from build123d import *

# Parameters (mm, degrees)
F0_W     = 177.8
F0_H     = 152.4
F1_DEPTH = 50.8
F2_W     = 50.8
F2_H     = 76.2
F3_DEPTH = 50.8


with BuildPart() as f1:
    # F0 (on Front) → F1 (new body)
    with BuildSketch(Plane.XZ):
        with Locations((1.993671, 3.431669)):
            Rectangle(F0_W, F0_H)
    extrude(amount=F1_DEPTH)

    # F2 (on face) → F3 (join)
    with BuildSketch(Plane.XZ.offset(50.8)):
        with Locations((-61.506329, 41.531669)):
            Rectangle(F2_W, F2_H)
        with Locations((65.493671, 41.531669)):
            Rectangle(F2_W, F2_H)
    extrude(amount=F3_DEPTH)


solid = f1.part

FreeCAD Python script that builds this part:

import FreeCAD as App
import Part
import Sketcher
Q = App.Units.Quantity


def add_polygon(sketch, points):
    """Adds a closed chain of lines whose ends are joined by coincident constraints."""
    first, n = sketch.GeometryCount, len(points)
    for a, b in zip(points, points[1:] + points[:1]):
        sketch.addGeometry(Part.LineSegment(App.Vector(*a, 0), App.Vector(*b, 0)), False)
    for i in range(n):
        sketch.addConstraint(Sketcher.Constraint("Coincident", first + i, 2, first + (i + 1) % n, 1))

doc = App.newDocument("Part")
body = doc.addObject("PartDesign::Body", "Body")

# Sketch on XZ plane
sketch1 = body.newObject("Sketcher::SketchObject", "Sketch")
sketch1.AttachmentSupport = (doc.getObject("XZ_Plane"), [""])
sketch1.MapMode = "FlatFace"
add_polygon(sketch1, [(-87, 80), (-87, -73), (91, -73), (91, 80)])  # lines 0-3
sketch1.addConstraint([
    Sketcher.Constraint("Vertical", 0),
    Sketcher.Constraint("Horizontal", 1),
    Sketcher.Constraint("Vertical", 2),
    Sketcher.Constraint("Horizontal", 3),
    Sketcher.Constraint("DistanceX", 1, 1, 1, 2, Q("7 in")),
    Sketcher.Constraint("DistanceY", 0, 2, 0, 1, Q("6 in")),
    Sketcher.Constraint("DistanceX", 0, 2, -1, 1, 86.906329),
    Sketcher.Constraint("DistanceY", 0, 2, -1, 1, 72.768331),
])
pad1 = body.newObject("PartDesign::Pad", "Pad")
pad1.Profile = sketch1
pad1.Length = Q("2 in")

# Sketch on XZ plane
sketch2 = body.newObject("Sketcher::SketchObject", "Sketch001")
sketch2.AttachmentSupport = (doc.getObject("XZ_Plane"), [""])
sketch2.MapMode = "FlatFace"
sketch2.AttachmentOffset = App.Placement(App.Vector(0, 0, 2 * 25.4), App.Rotation())
add_polygon(sketch2, [(-87, 80), (-87, 3), (-36, 3), (-36, 80)])  # lines 0-3
add_polygon(sketch2, [(40, 80), (40, 3), (91, 3), (91, 80)])  # lines 4-7
sketch2.addConstraint([
    Sketcher.Constraint("Vertical", 0),
    Sketcher.Constraint("Horizontal", 1),
    Sketcher.Constraint("Vertical", 2),
    Sketcher.Constraint("Horizontal", 3),
    Sketcher.Constraint("Vertical", 4),
    Sketcher.Constraint("Horizontal", 5),
    Sketcher.Constraint("Vertical", 6),
    Sketcher.Constraint("Horizontal", 7),
    Sketcher.Constraint("Horizontal", 1, 2, 4, 2),
    Sketcher.Constraint("Horizontal", 3, 2, 6, 2),
    Sketcher.Constraint("Equal", 3, 5),
    Sketcher.Constraint("DistanceX", 1, 1, 1, 2, Q("2 in")),
    Sketcher.Constraint("DistanceY", 0, 2, 0, 1, Q("3 in")),
    Sketcher.Constraint("DistanceX", 1, 2, 4, 2, Q("3 in")),
    Sketcher.Constraint("DistanceX", 0, 2, -1, 1, 86.906329),
    Sketcher.Constraint("DistanceY", -1, 1, 0, 2, 3.431669),
])
pad2 = body.newObject("PartDesign::Pad", "Pad001")
pad2.Profile = sketch2
pad2.Length = Q("2 in")

doc.recompute()
